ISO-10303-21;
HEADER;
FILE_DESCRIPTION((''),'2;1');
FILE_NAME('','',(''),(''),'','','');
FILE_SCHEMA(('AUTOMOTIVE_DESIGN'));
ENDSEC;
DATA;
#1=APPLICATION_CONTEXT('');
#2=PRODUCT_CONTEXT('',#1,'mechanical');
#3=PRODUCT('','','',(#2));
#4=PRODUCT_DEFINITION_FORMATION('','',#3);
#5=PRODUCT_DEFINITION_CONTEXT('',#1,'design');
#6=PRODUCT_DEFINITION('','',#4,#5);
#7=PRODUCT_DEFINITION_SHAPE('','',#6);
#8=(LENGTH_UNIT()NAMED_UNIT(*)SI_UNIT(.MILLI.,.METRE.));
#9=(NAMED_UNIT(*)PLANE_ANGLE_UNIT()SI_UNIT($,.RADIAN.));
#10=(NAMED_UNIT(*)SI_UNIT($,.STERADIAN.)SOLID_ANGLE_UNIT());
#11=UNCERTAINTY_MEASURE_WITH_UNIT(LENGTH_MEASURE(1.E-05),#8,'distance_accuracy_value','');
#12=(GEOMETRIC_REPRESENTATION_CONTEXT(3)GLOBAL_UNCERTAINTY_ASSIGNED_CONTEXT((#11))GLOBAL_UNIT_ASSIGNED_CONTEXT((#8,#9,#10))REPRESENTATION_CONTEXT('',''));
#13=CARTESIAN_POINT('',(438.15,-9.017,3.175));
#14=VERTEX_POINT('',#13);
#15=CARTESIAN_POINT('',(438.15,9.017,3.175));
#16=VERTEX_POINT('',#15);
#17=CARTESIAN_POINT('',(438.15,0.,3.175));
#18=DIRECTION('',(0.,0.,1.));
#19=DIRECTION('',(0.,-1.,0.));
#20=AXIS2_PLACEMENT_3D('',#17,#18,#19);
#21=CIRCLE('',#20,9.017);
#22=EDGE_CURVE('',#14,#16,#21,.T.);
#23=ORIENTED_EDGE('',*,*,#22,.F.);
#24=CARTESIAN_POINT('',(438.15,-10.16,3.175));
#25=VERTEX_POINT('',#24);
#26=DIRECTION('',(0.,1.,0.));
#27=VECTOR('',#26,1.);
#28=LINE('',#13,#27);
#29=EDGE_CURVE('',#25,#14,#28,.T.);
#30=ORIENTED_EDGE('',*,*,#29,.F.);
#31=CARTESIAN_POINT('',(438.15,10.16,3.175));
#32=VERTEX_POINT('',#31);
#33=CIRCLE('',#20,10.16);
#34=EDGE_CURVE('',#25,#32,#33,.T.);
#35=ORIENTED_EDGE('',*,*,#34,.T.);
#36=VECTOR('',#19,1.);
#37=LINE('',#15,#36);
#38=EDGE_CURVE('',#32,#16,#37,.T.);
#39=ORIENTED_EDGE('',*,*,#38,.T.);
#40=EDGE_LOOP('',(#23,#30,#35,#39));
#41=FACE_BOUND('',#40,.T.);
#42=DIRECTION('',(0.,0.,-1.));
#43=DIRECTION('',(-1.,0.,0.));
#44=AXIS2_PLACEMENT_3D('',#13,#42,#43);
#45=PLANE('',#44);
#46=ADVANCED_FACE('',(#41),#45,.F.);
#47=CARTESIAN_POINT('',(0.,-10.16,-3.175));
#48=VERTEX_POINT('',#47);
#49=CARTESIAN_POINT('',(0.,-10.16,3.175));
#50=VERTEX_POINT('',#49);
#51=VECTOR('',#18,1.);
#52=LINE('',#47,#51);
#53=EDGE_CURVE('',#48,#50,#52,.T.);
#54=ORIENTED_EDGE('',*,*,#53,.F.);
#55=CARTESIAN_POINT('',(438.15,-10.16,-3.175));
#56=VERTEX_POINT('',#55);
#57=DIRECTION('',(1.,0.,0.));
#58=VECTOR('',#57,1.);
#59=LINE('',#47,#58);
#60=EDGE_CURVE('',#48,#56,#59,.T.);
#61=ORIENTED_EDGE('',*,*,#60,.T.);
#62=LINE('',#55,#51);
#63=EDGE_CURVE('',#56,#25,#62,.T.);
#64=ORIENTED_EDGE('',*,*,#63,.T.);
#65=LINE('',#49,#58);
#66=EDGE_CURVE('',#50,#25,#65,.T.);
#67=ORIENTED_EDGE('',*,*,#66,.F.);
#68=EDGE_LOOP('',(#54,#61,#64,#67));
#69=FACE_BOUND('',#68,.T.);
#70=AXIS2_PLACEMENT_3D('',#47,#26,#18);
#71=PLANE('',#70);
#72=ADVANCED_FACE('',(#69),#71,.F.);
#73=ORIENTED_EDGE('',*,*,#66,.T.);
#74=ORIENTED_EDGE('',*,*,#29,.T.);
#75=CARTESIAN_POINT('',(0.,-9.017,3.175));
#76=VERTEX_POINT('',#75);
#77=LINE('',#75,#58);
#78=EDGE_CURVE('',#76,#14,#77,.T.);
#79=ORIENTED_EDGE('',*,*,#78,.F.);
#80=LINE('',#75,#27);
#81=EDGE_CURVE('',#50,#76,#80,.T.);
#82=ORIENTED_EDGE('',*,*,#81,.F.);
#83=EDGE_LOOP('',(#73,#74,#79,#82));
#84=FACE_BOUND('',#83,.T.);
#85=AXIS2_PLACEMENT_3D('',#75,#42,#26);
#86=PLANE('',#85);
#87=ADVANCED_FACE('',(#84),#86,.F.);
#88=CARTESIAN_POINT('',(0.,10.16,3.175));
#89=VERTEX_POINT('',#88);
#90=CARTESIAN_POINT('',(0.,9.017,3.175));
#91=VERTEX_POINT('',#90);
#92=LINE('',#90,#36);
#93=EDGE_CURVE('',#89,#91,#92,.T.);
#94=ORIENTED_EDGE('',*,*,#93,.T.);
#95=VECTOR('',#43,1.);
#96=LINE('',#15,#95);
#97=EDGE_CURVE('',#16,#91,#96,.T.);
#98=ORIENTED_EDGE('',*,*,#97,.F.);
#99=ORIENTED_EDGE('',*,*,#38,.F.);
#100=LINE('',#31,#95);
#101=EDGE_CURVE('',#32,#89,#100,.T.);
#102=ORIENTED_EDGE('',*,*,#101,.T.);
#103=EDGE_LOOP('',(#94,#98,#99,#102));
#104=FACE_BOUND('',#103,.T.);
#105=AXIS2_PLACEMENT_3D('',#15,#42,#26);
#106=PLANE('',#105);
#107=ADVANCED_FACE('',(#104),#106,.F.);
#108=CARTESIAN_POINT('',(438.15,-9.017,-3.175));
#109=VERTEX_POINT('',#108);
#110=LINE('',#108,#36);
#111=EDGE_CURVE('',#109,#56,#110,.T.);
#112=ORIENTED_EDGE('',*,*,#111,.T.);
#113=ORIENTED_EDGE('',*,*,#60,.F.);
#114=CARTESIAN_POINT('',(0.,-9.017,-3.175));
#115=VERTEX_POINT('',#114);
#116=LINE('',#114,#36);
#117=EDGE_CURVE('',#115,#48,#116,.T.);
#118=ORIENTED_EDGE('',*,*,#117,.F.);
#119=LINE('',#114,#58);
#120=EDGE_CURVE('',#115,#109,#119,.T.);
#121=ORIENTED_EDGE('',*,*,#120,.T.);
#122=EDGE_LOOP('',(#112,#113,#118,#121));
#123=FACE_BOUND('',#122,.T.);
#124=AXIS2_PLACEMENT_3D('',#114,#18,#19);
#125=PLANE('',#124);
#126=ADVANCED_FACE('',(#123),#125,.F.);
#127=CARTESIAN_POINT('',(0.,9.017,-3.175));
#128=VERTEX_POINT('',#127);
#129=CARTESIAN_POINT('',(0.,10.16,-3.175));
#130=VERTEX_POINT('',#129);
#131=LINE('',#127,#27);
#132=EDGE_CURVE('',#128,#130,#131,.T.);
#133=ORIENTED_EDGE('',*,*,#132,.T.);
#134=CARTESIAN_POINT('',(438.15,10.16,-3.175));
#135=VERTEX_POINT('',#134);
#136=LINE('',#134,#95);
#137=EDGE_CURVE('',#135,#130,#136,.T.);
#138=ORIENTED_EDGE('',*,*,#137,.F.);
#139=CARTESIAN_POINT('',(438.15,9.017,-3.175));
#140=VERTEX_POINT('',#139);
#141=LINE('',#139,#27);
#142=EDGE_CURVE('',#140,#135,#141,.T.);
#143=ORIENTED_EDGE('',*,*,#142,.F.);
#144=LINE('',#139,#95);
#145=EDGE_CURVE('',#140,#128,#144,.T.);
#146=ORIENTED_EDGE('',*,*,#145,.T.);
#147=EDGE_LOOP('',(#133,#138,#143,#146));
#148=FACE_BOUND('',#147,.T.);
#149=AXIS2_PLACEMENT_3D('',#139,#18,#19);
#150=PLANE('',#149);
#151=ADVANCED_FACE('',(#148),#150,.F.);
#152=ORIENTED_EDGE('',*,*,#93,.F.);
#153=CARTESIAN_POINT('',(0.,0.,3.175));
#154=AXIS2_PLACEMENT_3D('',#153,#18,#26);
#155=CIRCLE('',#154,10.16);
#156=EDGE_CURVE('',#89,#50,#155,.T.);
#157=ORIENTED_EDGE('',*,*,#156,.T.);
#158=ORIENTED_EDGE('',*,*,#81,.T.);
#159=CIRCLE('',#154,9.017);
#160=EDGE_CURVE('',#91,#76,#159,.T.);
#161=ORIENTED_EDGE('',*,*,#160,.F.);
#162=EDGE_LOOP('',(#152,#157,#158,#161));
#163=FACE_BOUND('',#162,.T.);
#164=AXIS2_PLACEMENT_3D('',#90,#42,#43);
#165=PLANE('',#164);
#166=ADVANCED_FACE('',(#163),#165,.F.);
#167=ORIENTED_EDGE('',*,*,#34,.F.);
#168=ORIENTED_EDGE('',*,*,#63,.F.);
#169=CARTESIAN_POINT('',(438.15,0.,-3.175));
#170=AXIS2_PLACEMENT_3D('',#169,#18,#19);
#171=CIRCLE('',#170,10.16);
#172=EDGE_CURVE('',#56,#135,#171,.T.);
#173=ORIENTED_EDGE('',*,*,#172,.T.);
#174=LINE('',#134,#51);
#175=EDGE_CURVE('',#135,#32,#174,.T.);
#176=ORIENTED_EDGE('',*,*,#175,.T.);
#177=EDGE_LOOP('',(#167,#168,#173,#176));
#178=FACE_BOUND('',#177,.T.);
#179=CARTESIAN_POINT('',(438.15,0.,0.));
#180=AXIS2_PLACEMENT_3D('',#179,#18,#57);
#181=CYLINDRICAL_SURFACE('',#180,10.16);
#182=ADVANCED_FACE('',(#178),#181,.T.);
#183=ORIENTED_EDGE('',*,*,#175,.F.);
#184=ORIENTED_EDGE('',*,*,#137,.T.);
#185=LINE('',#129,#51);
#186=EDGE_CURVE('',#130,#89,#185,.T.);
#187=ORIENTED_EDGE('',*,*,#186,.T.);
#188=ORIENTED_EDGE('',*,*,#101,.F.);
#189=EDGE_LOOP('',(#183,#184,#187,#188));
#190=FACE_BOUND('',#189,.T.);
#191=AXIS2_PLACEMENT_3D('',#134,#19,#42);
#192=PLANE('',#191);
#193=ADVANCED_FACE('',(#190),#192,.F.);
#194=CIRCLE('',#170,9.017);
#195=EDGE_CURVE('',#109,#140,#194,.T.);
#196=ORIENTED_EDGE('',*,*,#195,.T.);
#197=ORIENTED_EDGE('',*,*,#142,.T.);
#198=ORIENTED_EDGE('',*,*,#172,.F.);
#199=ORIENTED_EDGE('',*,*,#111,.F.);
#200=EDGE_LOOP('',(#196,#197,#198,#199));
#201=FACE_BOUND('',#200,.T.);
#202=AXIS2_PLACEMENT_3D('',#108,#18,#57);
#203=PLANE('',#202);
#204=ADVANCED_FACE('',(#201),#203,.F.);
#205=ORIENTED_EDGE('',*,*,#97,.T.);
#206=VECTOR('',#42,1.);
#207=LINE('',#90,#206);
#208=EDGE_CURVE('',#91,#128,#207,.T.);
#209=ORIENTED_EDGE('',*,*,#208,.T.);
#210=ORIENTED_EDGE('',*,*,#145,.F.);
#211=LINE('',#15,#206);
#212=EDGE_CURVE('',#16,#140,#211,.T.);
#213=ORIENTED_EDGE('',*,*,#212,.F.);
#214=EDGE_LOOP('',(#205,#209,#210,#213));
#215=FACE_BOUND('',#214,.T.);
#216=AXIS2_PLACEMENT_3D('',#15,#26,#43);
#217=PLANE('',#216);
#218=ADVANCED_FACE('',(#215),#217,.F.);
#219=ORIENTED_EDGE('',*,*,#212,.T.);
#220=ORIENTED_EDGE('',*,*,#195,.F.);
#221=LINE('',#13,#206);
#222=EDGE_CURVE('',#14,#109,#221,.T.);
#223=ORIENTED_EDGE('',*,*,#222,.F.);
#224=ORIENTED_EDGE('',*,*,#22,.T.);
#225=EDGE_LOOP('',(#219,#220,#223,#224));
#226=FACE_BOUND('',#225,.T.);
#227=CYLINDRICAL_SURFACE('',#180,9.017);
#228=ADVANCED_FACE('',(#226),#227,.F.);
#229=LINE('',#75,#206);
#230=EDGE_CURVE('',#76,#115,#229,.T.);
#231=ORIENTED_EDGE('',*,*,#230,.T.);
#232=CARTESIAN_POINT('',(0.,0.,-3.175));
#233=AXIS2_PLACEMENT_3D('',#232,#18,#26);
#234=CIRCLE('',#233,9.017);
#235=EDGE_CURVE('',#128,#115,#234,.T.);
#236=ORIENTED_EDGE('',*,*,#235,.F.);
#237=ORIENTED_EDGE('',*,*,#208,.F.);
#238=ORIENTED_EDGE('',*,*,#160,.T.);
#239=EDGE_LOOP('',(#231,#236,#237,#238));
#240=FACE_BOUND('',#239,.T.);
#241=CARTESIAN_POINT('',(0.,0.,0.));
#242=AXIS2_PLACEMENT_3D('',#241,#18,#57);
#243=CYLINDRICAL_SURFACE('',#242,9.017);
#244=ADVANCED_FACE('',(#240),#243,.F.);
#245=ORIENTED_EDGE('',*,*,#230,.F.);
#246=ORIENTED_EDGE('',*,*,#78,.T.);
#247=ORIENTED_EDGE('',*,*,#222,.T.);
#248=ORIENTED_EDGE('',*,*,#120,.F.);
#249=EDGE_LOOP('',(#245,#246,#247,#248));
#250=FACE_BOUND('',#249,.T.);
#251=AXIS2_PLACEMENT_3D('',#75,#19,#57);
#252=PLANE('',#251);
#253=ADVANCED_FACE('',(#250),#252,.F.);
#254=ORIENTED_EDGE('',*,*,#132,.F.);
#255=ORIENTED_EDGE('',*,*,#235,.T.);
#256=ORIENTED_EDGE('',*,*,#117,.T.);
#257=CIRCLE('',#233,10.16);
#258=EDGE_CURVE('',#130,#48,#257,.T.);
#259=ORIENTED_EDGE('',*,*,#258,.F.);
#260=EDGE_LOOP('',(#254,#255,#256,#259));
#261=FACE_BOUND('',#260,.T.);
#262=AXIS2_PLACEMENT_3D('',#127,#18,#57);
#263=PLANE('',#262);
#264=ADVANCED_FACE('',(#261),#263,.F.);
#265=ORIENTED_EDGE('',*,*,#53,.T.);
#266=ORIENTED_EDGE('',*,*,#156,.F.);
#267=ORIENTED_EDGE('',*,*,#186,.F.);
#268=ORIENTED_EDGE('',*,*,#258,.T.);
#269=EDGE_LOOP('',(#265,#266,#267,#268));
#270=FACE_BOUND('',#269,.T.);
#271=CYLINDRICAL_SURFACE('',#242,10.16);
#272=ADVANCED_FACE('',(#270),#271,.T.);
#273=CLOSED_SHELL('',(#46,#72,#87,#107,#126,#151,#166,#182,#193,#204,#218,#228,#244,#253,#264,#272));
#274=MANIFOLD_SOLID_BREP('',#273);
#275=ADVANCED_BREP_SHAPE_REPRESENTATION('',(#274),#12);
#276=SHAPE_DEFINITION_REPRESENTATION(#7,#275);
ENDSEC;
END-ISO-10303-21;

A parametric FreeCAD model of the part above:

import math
import FreeCAD as App
import Part
import Sketcher
from FreeCAD import Vector
Q = App.Units.Quantity

doc = App.newDocument("Part")
body = doc.addObject("PartDesign::Body", "Body")

sketch1 = body.newObject("Sketcher::SketchObject", "Sketch")
sketch1.AttachmentSupport = (doc.getObject("YZ_Plane"), [""])
sketch1.MapMode = "FlatFace"
sketch1.addGeometry([
    Part.LineSegment(Vector(10.2, 3.2, 0), Vector(9, 3.2, 0)),
    Part.LineSegment(Vector(9, 3.2, 0), Vector(9, -3.2, 0)),
    Part.LineSegment(Vector(9, -3.2, 0), Vector(10.2, -3.2, 0)),
    Part.LineSegment(Vector(10.2, -3.2, 0), Vector(10.2, 3.2, 0)),
], False)
sketch1.addConstraint([
    Sketcher.Constraint("Coincident", 0, 2, 1, 1),
    Sketcher.Constraint("Coincident", 1, 2, 2, 1),
    Sketcher.Constraint("Coincident", 2, 2, 3, 1),
    Sketcher.Constraint("Coincident", 3, 2, 0, 1),
    Sketcher.Constraint("Horizontal", 0),
    Sketcher.Constraint("Vertical", 1),
    Sketcher.Constraint("Horizontal", 2),
    Sketcher.Constraint("Vertical", 3),
    Sketcher.Constraint("DistanceY", 1, 2, 1, 1, Q("0.25 in")),
    Sketcher.Constraint("DistanceX", -1, 1, 2, 2, Q("0.4 in")),
    Sketcher.Constraint("DistanceX", 0, 2, 0, 1, Q("0.045 in")),
    Sketcher.Constraint("DistanceY", -1, 1, 0, 2, Q("0.125 in")),
])

sketch2 = body.newObject("Sketcher::SketchObject", "Sketch001")
sketch2.AttachmentSupport = (doc.getObject("XY_Plane"), [""])
sketch2.MapMode = "FlatFace"
sketch2.addGeometry([
    Part.LineSegment(Vector(0, 10, 0), Vector(438, 10, 0)),
    Part.ArcOfCircle(Part.Circle(Vector(438, 0, 0), Vector(0, 0, 1), 10), math.radians(-90), math.radians(90)),
    Part.LineSegment(Vector(438, -10, 0), Vector(0, -10, 0)),
    Part.ArcOfCircle(Part.Circle(Vector(0, 0, 0), Vector(0, 0, 1), 10), math.radians(90), math.radians(270)),
], False)
sketch2.addConstraint([
    Sketcher.Constraint("Tangent", 0, 2, 1, 2),
    Sketcher.Constraint("Tangent", 1, 1, 2, 1),
    Sketcher.Constraint("Tangent", 2, 2, 3, 2),
    Sketcher.Constraint("Tangent", 3, 1, 0, 1),
    Sketcher.Constraint("Horizontal", 0),
    Sketcher.Constraint("Horizontal", 2),
    Sketcher.Constraint("Coincident", 3, 3, -1, 1),
    Sketcher.Constraint("Radius", 1, Q("0.4 in")),
    Sketcher.Constraint("DistanceX", 0, 1, 0, 2, Q("17.25 in")),
])
doc.recompute()

additivepipe = body.newObject("PartDesign::AdditivePipe", "AdditivePipe")
additivepipe.Profile = sketch1
additivepipe.Spine = (sketch2, ["Edge1", "Edge2", "Edge3", "Edge4"])

doc.recompute()
